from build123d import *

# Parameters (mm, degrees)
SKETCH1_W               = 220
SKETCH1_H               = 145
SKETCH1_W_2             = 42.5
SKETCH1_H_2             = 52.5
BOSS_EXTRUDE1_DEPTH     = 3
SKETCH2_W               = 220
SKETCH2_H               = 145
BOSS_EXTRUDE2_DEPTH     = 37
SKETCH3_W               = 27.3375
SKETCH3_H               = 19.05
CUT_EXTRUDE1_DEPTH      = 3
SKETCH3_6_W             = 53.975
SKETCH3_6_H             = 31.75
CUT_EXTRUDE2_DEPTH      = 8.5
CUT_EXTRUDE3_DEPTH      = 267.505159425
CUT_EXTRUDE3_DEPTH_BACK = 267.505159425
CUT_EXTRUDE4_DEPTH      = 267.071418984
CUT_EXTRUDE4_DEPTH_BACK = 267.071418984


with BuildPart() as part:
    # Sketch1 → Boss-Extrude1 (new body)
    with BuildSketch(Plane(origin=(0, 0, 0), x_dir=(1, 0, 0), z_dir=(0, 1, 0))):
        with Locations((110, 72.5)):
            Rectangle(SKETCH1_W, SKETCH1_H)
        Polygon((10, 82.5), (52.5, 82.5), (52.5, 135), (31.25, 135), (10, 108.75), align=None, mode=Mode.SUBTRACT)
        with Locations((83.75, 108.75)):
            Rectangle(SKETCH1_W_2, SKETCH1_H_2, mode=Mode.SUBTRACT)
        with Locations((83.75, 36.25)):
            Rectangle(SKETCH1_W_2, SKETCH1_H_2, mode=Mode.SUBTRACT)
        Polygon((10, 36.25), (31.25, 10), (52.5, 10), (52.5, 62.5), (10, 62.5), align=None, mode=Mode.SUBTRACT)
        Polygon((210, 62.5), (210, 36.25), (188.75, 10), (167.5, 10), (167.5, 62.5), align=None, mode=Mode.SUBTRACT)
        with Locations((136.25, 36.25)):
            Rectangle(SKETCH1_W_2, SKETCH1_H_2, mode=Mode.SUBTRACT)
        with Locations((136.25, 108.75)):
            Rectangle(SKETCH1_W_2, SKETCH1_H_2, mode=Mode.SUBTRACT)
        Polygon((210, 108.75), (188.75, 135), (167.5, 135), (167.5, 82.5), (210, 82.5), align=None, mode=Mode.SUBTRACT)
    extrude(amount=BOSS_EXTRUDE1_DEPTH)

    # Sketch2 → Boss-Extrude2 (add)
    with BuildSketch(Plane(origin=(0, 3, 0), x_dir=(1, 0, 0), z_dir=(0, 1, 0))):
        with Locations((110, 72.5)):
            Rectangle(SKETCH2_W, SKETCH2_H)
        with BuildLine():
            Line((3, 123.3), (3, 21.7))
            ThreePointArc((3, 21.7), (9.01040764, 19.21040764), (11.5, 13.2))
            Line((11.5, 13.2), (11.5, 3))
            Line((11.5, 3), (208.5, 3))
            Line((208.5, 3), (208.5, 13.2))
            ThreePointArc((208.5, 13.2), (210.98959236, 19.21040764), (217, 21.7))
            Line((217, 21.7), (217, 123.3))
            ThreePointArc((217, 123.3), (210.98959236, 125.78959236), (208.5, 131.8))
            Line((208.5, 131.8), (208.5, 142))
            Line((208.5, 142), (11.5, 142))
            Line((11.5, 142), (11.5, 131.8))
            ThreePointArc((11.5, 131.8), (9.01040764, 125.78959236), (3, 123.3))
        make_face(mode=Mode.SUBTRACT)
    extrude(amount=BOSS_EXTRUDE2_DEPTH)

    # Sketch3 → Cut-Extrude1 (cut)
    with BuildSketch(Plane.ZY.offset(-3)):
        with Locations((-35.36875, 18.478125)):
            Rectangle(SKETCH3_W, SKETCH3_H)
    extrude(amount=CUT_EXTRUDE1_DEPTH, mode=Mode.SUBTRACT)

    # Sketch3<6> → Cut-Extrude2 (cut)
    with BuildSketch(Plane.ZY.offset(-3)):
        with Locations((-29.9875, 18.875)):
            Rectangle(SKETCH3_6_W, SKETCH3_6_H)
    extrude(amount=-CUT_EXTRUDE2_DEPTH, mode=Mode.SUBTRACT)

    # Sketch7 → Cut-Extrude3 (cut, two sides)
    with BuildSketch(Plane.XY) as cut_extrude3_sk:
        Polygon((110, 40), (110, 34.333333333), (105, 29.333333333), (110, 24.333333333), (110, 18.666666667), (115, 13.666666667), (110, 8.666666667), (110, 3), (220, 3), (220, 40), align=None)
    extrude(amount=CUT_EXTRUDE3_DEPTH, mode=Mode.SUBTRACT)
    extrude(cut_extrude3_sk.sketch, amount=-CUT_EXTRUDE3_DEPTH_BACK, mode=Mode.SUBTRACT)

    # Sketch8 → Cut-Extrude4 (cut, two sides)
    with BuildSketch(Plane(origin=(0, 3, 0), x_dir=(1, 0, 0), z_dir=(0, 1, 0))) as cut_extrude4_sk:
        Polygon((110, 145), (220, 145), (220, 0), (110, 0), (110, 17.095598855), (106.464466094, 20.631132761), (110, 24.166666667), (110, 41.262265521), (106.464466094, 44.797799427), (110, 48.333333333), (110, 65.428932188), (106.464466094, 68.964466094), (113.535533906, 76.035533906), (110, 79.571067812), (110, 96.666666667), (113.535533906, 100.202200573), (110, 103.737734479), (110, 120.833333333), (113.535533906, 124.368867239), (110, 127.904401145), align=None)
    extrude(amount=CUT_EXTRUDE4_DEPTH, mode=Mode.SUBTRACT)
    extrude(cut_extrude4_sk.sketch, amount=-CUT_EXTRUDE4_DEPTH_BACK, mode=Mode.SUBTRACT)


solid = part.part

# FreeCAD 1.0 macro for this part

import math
import FreeCAD as App
import Part
import Sketcher

V = App.Vector


def add_polygon(sketch, points):
    """Adds a closed chain of lines whose ends are joined by coincident constraints."""
    first, n = sketch.GeometryCount, len(points)
    for a, b in zip(points, points[1:] + points[:1]):
        sketch.addGeometry(Part.LineSegment(App.Vector(*a, 0), App.Vector(*b, 0)), False)
    for i in range(n):
        sketch.addConstraint(Sketcher.Constraint("Coincident", first + i, 2, first + (i + 1) % n, 1))

doc = App.newDocument("Part")
body = doc.addObject("PartDesign::Body", "Body")

# Sketch on XZ plane
sketch1 = doc.addObject("Sketcher::SketchObject", "Sketch")
body.addObject(sketch1)
sketch1.AttachmentSupport = (doc.XZ_Plane, [""])
sketch1.MapMode = "FlatFace"
add_polygon(sketch1, [(0, -145), (0, 0), (220, 0), (220, -145)])  # lines 0-3
add_polygon(sketch1, [(31, -10), (10, -36), (10, -62), (52, -62), (52, -10)])  # lines 4-8
add_polygon(sketch1, [(105, -10), (62, -10), (62, -62), (105, -62)])  # lines 9-12
add_polygon(sketch1, [(158, -10), (115, -10), (115, -62), (158, -62)])  # lines 13-16
add_polygon(sketch1, [(168, -62), (210, -62), (210, -36), (189, -10), (168, -10)])  # lines 17-21
add_polygon(sketch1, [(52, -82), (10, -82), (10, -109), (31, -135), (52, -135)])  # lines 22-26
add_polygon(sketch1, [(105, -82), (62, -82), (62, -135), (105, -135)])  # lines 27-30
add_polygon(sketch1, [(158, -82), (115, -82), (115, -135), (158, -135)])  # lines 31-34
add_polygon(sketch1, [(189, -135), (210, -109), (210, -82), (168, -82), (168, -135)])  # lines 35-39
sketch1.addConstraint([
    Sketcher.Constraint("Vertical", 0),
    Sketcher.Constraint("Horizontal", 1),
    Sketcher.Constraint("Vertical", 2),
    Sketcher.Constraint("Horizontal", 3),
    Sketcher.Constraint("Vertical", 5),
    Sketcher.Constraint("Horizontal", 6),
    Sketcher.Constraint("Vertical", 7),
    Sketcher.Constraint("Horizontal", 8),
    Sketcher.Constraint("Horizontal", 9),
    Sketcher.Constraint("Vertical", 10),
    Sketcher.Constraint("Horizontal", 11),
    Sketcher.Constraint("Vertical", 12),
    Sketcher.Constraint("Horizontal", 13),
    Sketcher.Constraint("Vertical", 14),
    Sketcher.Constraint("Horizontal", 15),
    Sketcher.Constraint("Vertical", 16),
    Sketcher.Constraint("Horizontal", 17),
    Sketcher.Constraint("Vertical", 18),
    Sketcher.Constraint("Horizontal", 20),
    Sketcher.Constraint("Vertical", 21),
    Sketcher.Constraint("Horizontal", 22),
    Sketcher.Constraint("Vertical", 23),
    Sketcher.Constraint("Horizontal", 25),
    Sketcher.Constraint("Vertical", 26),
    Sketcher.Constraint("Horizontal", 27),
    Sketcher.Constraint("Vertical", 28),
    Sketcher.Constraint("Horizontal", 29),
    Sketcher.Constraint("Vertical", 30),
    Sketcher.Constraint("Horizontal", 31),
    Sketcher.Constraint("Vertical", 32),
    Sketcher.Constraint("Horizontal", 33),
    Sketcher.Constraint("Vertical", 34),
    Sketcher.Constraint("Vertical", 36),
    Sketcher.Constraint("Horizontal", 37),
    Sketcher.Constraint("Vertical", 38),
    Sketcher.Constraint("Horizontal", 39),
    Sketcher.Constraint("Coincident", 0, 2, -1, 1),
    Sketcher.Constraint("Parallel", 19, 24),
    Sketcher.Constraint("Parallel", 4, 35),
    Sketcher.Constraint("Horizontal", 8, 2, 9, 2),
    Sketcher.Constraint("Horizontal", 6, 2, 10, 2),
    Sketcher.Constraint("Horizontal", 12, 2, 13, 2),
    Sketcher.Constraint("Horizontal", 11, 2, 14, 2),
    Sketcher.Constraint("Horizontal", 15, 2, 17, 2),
    Sketcher.Constraint("Horizontal", 4, 2, 18, 2),
    Sketcher.Constraint("Horizontal", 16, 2, 19, 2),
    Sketcher.Constraint("Horizontal", 26, 2, 27, 2),
    Sketcher.Constraint("Horizontal", 25, 2, 28, 2),
    Sketcher.Constraint("Horizontal", 30, 2, 31, 2),
    Sketcher.Constraint("Horizontal", 29, 2, 32, 2),
    Sketcher.Constraint("Horizontal", 23, 2, 35, 2),
    Sketcher.Constraint("Horizontal", 34, 2, 36, 2),
    Sketcher.Constraint("Horizontal", 33, 2, 38, 2),
    Sketcher.Constraint("Vertical", 5, 2, 22, 2),
    Sketcher.Constraint("Vertical", 8, 2, 24, 2),
    Sketcher.Constraint("Vertical", 7, 2, 25, 2),
    Sketcher.Constraint("Vertical", 10, 2, 27, 2),
    Sketcher.Constraint("Vertical", 12, 2, 29, 2),
    Sketcher.Constraint("Vertical", 14, 2, 31, 2),
    Sketcher.Constraint("Vertical", 16, 2, 33, 2),
    Sketcher.Constraint("Vertical", 18, 2, 35, 2),
    Sketcher.Constraint("Vertical", 21, 2, 37, 2),
    Sketcher.Constraint("Vertical", 19, 2, 39, 2),
    Sketcher.Constraint("Equal", 6, 9),
    Sketcher.Constraint("Equal", 11, 13),
    Sketcher.Constraint("Equal", 15, 17),
    Sketcher.Constraint("Equal", 18, 23),
    Sketcher.Constraint("DistanceX", 1, 1, 1, 2, 220.0),
    Sketcher.Constraint("DistanceY", 0, 1, 0, 2, 145.0),
    Sketcher.Constraint("DistanceX", 6, 1, 6, 2, 42.5),
    Sketcher.Constraint("DistanceY", 7, 1, 7, 2, 52.5),
    Sketcher.Constraint("DistanceX", -1, 1, 4, 2, 10.0),
    Sketcher.Constraint("DistanceY", 7, 2, -1, 1, 10.0),
    Sketcher.Constraint("DistanceX", -1, 1, 11, 2, 105.0),
    Sketcher.Constraint("DistanceX", -1, 1, 13, 2, 115.0),
    Sketcher.Constraint("DistanceX", -1, 1, 17, 2, 210.0),
    Sketcher.Constraint("DistanceY", 24, 2, -1, 1, 135.0),
    Sketcher.Constraint("DistanceX", 8, 2, 8, 1, 21.25),
    Sketcher.Constraint("DistanceY", 5, 2, 5, 1, 26.25),
])
pad1 = doc.addObject("PartDesign::Pad", "Pad")
body.addObject(pad1)
pad1.Profile = sketch1
pad1.Length = 3
pad1.Reversed = True

# Sketch on XZ plane
sketch2 = doc.addObject("Sketcher::SketchObject", "Sketch001")
body.addObject(sketch2)
sketch2.AttachmentSupport = (doc.XZ_Plane, [""])
sketch2.MapMode = "FlatFace"
sketch2.AttachmentOffset = App.Placement(V(0, 0, -3), App.Rotation())
add_polygon(sketch2, [(0, -145), (0, 0), (220, 0), (220, -145)])  # lines 0-3
sketch2.addGeometry(Part.LineSegment(V(3, -22, 0), V(3, -123, 0)), False)  # 4
sketch2.addGeometry(Part.ArcOfCircle(Part.Circle(V(3, -132, 0), V(0, 0, 1), 8), math.radians(0), math.radians(90)), False)  # 5
sketch2.addGeometry(Part.LineSegment(V(12, -132, 0), V(12, -142, 0)), False)  # 6
sketch2.addGeometry(Part.LineSegment(V(12, -142, 0), V(208, -142, 0)), False)  # 7
sketch2.addGeometry(Part.LineSegment(V(208, -142, 0), V(208, -132, 0)), False)  # 8
sketch2.addGeometry(Part.ArcOfCircle(Part.Circle(V(217, -132, 0), V(0, 0, 1), 8), math.radians(90), math.radians(180)), False)  # 9
sketch2.addGeometry(Part.LineSegment(V(217, -123, 0), V(217, -22, 0)), False)  # 10
sketch2.addGeometry(Part.ArcOfCircle(Part.Circle(V(217, -13, 0), V(0, 0, 1), 8), math.radians(180), math.radians(270)), False)  # 11
sketch2.addGeometry(Part.LineSegment(V(208, -13, 0), V(208, -3, 0)), False)  # 12
sketch2.addGeometry(Part.LineSegment(V(208, -3, 0), V(12, -3, 0)), False)  # 13
sketch2.addGeometry(Part.LineSegment(V(12, -3, 0), V(12, -13, 0)), False)  # 14
sketch2.addGeometry(Part.ArcOfCircle(Part.Circle(V(3, -13, 0), V(0, 0, 1), 8), math.radians(-90), math.radians(0)), False)  # 15
sketch2.addConstraint([
    Sketcher.Constraint("Coincident", 4, 2, 5, 2),
    Sketcher.Constraint("Tangent", 5, 1, 6, 1),
    Sketcher.Constraint("Coincident", 6, 2, 7, 1),
    Sketcher.Constraint("Coincident", 7, 2, 8, 1),
    Sketcher.Constraint("Tangent", 8, 2, 9, 2),
    Sketcher.Constraint("Coincident", 9, 1, 10, 1),
    Sketcher.Constraint("Coincident", 10, 2, 11, 2),
    Sketcher.Constraint("Tangent", 11, 1, 12, 1),
    Sketcher.Constraint("Coincident", 12, 2, 13, 1),
    Sketcher.Constraint("Coincident", 13, 2, 14, 1),
    Sketcher.Constraint("Tangent", 14, 2, 15, 2),
    Sketcher.Constraint("Coincident", 15, 1, 4, 1),
    Sketcher.Constraint("Vertical", 0),
    Sketcher.Constraint("Horizontal", 1),
    Sketcher.Constraint("Vertical", 2),
    Sketcher.Constraint("Horizontal", 3),
    Sketcher.Constraint("Vertical", 4),
    Sketcher.Constraint("Vertical", 6),
    Sketcher.Constraint("Horizontal", 7),
    Sketcher.Constraint("Vertical", 8),
    Sketcher.Constraint("Vertical", 10),
    Sketcher.Constraint("Vertical", 12),
    Sketcher.Constraint("Horizontal", 13),
    Sketcher.Constraint("Vertical", 14),
    Sketcher.Constraint("Coincident", 0, 2, -1, 1),
    Sketcher.Constraint("Equal", 5, 9),
    Sketcher.Constraint("Equal", 9, 11),
    Sketcher.Constraint("Equal", 11, 15),
    Sketcher.Constraint("Horizontal", 5, 3, 9, 3),
    Sketcher.Constraint("Horizontal", 11, 3, 15, 3),
    Sketcher.Constraint("Vertical", 9, 3, 11, 3),
    Sketcher.Constraint("Vertical", 5, 3, 15, 3),
    Sketcher.Constraint("Vertical", 15, 3, 4, 2),
    Sketcher.Constraint("Vertical", 11, 3, 9, 1),
    Sketcher.Constraint("Equal", 8, 12),
    Sketcher.Constraint("Radius", 5, 8.5),
    Sketcher.Constraint("DistanceX", 1, 1, 1, 2, 220.0),
    Sketcher.Constraint("DistanceX", 7, 1, 7, 2, 197.0),
    Sketcher.Constraint("DistanceY", 0, 1, 0, 2, 145.0),
    Sketcher.Constraint("DistanceY", 4, 2, 4, 1, 101.6),
    Sketcher.Constraint("DistanceY", 6, 2, 6, 1, 10.2),
    Sketcher.Constraint("DistanceX", -1, 1, 5, 3, 3.0),
    Sketcher.Constraint("DistanceY", 6, 2, -1, 1, 142.0),
])
pad2 = doc.addObject("PartDesign::Pad", "Pad001")
body.addObject(pad2)
pad2.Profile = sketch2
pad2.Length = 37
pad2.Reversed = True

# Sketch on YZ plane
sketch3 = doc.addObject("Sketcher::SketchObject", "Sketch002")
body.addObject(sketch3)
sketch3.AttachmentSupport = (doc.YZ_Plane, [""])
sketch3.MapMode = "FlatFace"
sketch3.AttachmentOffset = App.Placement(V(0, 0, 3), App.Rotation())
add_polygon(sketch3, [(28, -49), (9, -49), (9, -22), (28, -22)])  # lines 0-3
sketch3.addConstraint([
    Sketcher.Constraint("Horizontal", 0),
    Sketcher.Constraint("Vertical", 1),
    Sketcher.Constraint("Horizontal", 2),
    Sketcher.Constraint("Vertical", 3),
    Sketcher.Constraint("DistanceX", 0, 2, 0, 1, 19.05),
    Sketcher.Constraint("DistanceY", 1, 2, -1, 1, 21.7),
    Sketcher.Constraint("DistanceY", 1, 1, 1, 2, 27.3375),
    Sketcher.Constraint("DistanceX", -1, 1, 0, 2, 8.953125),
])
pocket1 = doc.addObject("PartDesign::Pocket", "Pocket")
body.addObject(pocket1)
pocket1.Profile = sketch3
pocket1.Length = 3

# Sketch on YZ plane
sketch4 = doc.addObject("Sketcher::SketchObject", "Sketch003")
body.addObject(sketch4)
sketch4.AttachmentSupport = (doc.YZ_Plane, [""])
sketch4.MapMode = "FlatFace"
sketch4.AttachmentOffset = App.Placement(V(0, 0, 3), App.Rotation())
add_polygon(sketch4, [(35, -57), (3, -57), (3, -3), (35, -3)])  # lines 0-3
sketch4.addConstraint([
    Sketcher.Constraint("Horizontal", 0),
    Sketcher.Constraint("Vertical", 1),
    Sketcher.Constraint("Horizontal", 2),
    Sketcher.Constraint("Vertical", 3),
    Sketcher.Constraint("DistanceX", -1, 1, 0, 2, 3.0),
    Sketcher.Constraint("DistanceY", 1, 2, -1, 1, 3.0),
    Sketcher.Constraint("DistanceX", 0, 2, 0, 1, 31.75),
    Sketcher.Constraint("DistanceY", 1, 1, 1, 2, 53.975),
])
pocket2 = doc.addObject("PartDesign::Pocket", "Pocket001")
body.addObject(pocket2)
pocket2.Profile = sketch4
pocket2.Length = 8.5
pocket2.Reversed = True

# Sketch on XY plane
sketch5 = doc.addObject("Sketcher::SketchObject", "Sketch004")
body.addObject(sketch5)
sketch5.AttachmentSupport = (doc.XY_Plane, [""])
sketch5.MapMode = "FlatFace"
add_polygon(sketch5, [(110, 40), (110, 34), (105, 29), (110, 24), (110, 19), (115, 14), (110, 9), (110, 3), (220, 3), (220, 40)])  # lines 0-9
sketch5.addConstraint([
    Sketcher.Constraint("Vertical", 0),
    Sketcher.Constraint("Vertical", 3),
    Sketcher.Constraint("Vertical", 6),
    Sketcher.Constraint("Horizontal", 7),
    Sketcher.Constraint("Vertical", 8),
    Sketcher.Constraint("Horizontal", 9),
    Sketcher.Constraint("Perpendicular", 1, 2),
    Sketcher.Constraint("Parallel", 2, 4),
    Sketcher.Constraint("Perpendicular", 4, 5),
    Sketcher.Constraint("Vertical", 0, 2, 2, 2),
    Sketcher.Constraint("Vertical", 3, 2, 5, 2),
    Sketcher.Constraint("Equal", 0, 3),
    Sketcher.Constraint("Equal", 3, 6),
    Sketcher.Constraint("Equal", 1, 2),
    Sketcher.Constraint("Equal", 2, 4),
    Sketcher.Constraint("DistanceX", 7, 1, 7, 2, 110.0),
    Sketcher.Constraint("DistanceY", 8, 1, 8, 2, 37.0),
    Sketcher.Constraint("DistanceX", -1, 1, 0, 2, 110.0),
    Sketcher.Constraint("DistanceX", -1, 1, 1, 2, 105.0),
    Sketcher.Constraint("DistanceY", -1, 1, 6, 2, 3.0),
])
pocket3 = doc.addObject("PartDesign::Pocket", "Pocket002")
body.addObject(pocket3)
pocket3.Profile = sketch5
pocket3.Type = "ThroughAll"
pocket3.Midplane = True

# Sketch on XZ plane
sketch6 = doc.addObject("Sketcher::SketchObject", "Sketch005")
body.addObject(sketch6)
sketch6.AttachmentSupport = (doc.XZ_Plane, [""])
sketch6.MapMode = "FlatFace"
sketch6.AttachmentOffset = App.Placement(V(0, 0, -3), App.Rotation())
add_polygon(sketch6, [(220, -145), (110, -145), (110, -128), (114, -124), (110, -121), (110, -104), (114, -100), (110, -97), (110, -80), (114, -76), (106, -69), (110, -65), (110, -48), (106, -45), (110, -41), (110, -24), (106, -21), (110, -17), (110, 0), (220, 0)])  # lines 0-19
sketch6.addConstraint([
    Sketcher.Constraint("Horizontal", 0),
    Sketcher.Constraint("Vertical", 1),
    Sketcher.Constraint("Vertical", 4),
    Sketcher.Constraint("Vertical", 7),
    Sketcher.Constraint("Vertical", 11),
    Sketcher.Constraint("Vertical", 14),
    Sketcher.Constraint("Vertical", 17),
    Sketcher.Constraint("Horizontal", 18),
    Sketcher.Constraint("Vertical", 19),
    Sketcher.Constraint("PointOnObject", 17, 2, -1),
    Sketcher.Constraint("Perpendicular", 2, 3),
    Sketcher.Constraint("Perpendicular", 3, 5),
    Sketcher.Constraint("Perpendicular", 5, 6),
    Sketcher.Constraint("Perpendicular", 6, 8),
    Sketcher.Constraint("Perpendicular", 8, 9),
    Sketcher.Constraint("Perpendicular", 9, 10),
    Sketcher.Constraint("Perpendicular", 10, 12),
    Sketcher.Constraint("Perpendicular", 12, 13),
    Sketcher.Constraint("Perpendicular", 13, 15),
    Sketcher.Constraint("Perpendicular", 15, 16),
    Sketcher.Constraint("Vertical", 1, 2, 3, 2),
    Sketcher.Constraint("Vertical", 2, 2, 5, 2),
    Sketcher.Constraint("Vertical", 4, 2, 6, 2),
    Sketcher.Constraint("Vertical", 5, 2, 8, 2),
    Sketcher.Constraint("Vertical", 7, 2, 10, 2),
    Sketcher.Constraint("Vertical", 9, 2, 12, 2),
    Sketcher.Constraint("Vertical", 11, 2, 13, 2),
    Sketcher.Constraint("Vertical", 12, 2, 15, 2),
    Sketcher.Constraint("Vertical", 14, 2, 16, 2),
    Sketcher.Constraint("Equal", 1, 4),
    Sketcher.Constraint("Equal", 4, 7),
    Sketcher.Constraint("Equal", 7, 11),
    Sketcher.Constraint("Equal", 11, 14),
    Sketcher.Constraint("Equal", 14, 17),
    Sketcher.Constraint("Equal", 2, 3),
    Sketcher.Constraint("Equal", 8, 10),
    Sketcher.Constraint("DistanceX", 0, 2, 0, 1, 110.0),
    Sketcher.Constraint("DistanceY", 19, 2, 19, 1, 145.0),
    Sketcher.Constraint("Distance", 2, 5.0),
    Sketcher.Constraint("DistanceX", -1, 1, 0, 2, 110.0),
])
pocket4 = doc.addObject("PartDesign::Pocket", "Pocket003")
body.addObject(pocket4)
pocket4.Profile = sketch6
pocket4.Type = "ThroughAll"
pocket4.Midplane = True

doc.recompute()
